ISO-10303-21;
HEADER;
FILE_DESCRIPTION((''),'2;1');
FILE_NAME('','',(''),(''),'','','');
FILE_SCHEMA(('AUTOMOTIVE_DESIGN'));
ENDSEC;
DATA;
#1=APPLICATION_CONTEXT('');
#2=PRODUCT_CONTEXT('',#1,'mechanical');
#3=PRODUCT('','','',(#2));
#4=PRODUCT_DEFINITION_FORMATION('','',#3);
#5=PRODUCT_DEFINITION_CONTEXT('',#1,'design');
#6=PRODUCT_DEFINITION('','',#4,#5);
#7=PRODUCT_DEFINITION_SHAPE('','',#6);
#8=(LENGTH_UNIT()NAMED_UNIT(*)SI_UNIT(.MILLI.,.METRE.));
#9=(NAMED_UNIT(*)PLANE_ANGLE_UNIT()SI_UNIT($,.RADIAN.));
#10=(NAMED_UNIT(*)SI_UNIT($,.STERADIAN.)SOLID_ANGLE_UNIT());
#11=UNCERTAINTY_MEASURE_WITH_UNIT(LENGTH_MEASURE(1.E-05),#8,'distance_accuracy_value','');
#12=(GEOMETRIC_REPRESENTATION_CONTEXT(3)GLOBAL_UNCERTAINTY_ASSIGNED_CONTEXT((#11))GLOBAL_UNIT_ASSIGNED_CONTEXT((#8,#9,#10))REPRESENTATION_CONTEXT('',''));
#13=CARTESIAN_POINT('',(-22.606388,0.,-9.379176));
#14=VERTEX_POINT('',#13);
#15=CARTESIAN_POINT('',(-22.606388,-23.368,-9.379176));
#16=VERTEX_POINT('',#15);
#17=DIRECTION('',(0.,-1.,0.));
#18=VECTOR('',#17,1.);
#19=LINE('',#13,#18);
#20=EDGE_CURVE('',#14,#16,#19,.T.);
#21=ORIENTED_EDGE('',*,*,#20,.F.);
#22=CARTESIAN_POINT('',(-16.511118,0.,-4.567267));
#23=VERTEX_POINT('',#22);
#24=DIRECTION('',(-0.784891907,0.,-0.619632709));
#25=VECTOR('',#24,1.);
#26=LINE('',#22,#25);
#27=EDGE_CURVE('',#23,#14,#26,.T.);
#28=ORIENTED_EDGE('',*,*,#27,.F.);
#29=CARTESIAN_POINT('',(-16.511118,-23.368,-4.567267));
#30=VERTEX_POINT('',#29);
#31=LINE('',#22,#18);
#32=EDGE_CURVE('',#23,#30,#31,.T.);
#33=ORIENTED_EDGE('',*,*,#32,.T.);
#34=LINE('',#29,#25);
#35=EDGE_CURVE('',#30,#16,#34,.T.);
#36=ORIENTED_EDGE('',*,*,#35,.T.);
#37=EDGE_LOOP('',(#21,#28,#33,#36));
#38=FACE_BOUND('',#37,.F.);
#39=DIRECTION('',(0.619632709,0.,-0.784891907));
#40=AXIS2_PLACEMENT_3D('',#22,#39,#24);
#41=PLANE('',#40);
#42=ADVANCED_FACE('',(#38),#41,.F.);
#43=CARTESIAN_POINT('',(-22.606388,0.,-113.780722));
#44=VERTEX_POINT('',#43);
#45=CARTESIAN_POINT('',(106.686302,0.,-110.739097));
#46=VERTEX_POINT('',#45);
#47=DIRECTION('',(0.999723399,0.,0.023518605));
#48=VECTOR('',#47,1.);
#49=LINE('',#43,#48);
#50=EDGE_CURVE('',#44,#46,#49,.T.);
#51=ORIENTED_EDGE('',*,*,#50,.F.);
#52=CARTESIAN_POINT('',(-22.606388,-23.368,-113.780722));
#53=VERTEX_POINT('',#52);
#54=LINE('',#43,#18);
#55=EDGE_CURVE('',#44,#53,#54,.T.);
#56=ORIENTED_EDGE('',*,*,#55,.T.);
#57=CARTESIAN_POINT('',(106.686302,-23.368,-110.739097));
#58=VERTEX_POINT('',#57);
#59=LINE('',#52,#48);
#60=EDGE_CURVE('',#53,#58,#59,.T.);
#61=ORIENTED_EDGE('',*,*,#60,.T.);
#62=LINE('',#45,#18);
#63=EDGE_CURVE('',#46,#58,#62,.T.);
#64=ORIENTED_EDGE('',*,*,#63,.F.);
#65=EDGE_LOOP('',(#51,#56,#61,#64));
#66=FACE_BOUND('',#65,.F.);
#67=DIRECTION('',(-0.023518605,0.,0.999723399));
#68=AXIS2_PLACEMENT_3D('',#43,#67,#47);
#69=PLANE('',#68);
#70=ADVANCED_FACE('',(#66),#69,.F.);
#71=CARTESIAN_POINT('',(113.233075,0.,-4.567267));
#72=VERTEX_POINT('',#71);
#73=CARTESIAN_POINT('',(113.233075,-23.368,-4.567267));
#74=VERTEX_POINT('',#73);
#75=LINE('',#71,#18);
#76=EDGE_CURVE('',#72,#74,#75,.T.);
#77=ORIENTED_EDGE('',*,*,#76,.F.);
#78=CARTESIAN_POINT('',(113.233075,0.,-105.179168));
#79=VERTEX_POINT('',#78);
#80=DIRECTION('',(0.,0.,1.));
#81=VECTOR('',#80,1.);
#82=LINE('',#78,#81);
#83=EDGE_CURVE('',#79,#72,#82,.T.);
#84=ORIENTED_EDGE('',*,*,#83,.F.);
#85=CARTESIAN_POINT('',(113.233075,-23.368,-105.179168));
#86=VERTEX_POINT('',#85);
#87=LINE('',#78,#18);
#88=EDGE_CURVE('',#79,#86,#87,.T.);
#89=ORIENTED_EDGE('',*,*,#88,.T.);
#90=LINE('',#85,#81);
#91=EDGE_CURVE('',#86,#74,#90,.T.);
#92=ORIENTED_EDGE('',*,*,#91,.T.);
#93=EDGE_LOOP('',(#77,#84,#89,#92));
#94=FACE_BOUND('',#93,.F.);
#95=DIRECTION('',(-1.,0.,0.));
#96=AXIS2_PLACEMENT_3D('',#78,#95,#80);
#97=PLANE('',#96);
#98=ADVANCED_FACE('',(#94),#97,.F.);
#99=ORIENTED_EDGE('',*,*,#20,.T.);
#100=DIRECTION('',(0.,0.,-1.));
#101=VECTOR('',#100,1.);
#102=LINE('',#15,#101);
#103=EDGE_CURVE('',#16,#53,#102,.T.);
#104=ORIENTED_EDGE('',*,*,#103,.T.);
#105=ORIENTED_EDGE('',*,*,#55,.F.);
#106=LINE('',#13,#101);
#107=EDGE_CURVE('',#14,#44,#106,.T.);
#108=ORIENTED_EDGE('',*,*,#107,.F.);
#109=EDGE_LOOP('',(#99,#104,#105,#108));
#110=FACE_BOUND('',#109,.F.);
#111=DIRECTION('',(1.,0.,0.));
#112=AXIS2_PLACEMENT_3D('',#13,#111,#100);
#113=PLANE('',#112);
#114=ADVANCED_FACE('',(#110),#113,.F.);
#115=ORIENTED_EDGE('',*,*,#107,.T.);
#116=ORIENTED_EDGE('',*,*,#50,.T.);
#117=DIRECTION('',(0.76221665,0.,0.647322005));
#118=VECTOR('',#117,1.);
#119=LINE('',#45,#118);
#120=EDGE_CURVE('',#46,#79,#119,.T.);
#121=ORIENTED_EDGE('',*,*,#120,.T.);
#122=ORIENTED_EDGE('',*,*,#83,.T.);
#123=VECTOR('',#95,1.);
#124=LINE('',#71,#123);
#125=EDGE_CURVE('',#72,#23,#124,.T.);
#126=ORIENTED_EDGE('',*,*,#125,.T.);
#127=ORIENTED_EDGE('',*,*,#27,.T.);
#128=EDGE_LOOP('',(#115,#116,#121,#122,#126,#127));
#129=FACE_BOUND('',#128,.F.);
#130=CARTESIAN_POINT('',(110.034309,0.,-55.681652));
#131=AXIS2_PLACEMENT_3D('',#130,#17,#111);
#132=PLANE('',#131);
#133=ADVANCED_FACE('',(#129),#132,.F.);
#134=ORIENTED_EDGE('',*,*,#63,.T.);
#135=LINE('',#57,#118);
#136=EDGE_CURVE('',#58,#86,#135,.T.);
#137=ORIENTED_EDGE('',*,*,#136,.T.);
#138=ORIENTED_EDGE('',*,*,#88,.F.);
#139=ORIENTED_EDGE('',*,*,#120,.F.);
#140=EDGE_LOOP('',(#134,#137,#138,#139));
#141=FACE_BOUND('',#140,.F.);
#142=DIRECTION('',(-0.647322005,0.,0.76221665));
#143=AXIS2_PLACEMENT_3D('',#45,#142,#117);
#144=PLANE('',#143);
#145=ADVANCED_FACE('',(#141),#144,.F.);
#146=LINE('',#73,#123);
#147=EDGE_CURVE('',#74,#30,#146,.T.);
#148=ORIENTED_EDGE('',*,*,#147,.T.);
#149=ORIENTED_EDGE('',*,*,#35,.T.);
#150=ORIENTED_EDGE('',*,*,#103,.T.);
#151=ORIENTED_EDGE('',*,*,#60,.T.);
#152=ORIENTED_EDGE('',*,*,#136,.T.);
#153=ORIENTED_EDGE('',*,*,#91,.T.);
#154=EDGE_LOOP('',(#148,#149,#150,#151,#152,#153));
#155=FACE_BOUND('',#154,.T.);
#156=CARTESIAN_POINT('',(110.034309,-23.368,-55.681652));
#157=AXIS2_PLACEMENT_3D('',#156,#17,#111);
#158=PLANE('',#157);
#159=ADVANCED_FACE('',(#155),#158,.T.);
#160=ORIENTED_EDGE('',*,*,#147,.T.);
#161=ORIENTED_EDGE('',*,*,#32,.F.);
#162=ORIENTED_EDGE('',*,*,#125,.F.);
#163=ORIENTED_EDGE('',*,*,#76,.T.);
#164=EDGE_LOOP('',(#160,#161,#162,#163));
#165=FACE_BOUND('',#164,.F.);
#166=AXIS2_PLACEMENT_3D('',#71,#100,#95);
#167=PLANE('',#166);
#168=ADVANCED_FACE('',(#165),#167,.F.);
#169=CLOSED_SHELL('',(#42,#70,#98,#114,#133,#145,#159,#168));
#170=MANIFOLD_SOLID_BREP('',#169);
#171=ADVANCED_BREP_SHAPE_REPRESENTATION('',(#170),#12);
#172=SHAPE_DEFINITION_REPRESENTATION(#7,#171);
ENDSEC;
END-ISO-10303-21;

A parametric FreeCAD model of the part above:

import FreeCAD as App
import Part
import Sketcher
from FreeCAD import Vector
Q = App.Units.Quantity


def add_polygon(sketch, points):
    """Adds a closed chain of lines whose ends are joined by coincident constraints."""
    first, n = sketch.GeometryCount, len(points)
    for a, b in zip(points, points[1:] + points[:1]):
        sketch.addGeometry(Part.LineSegment(App.Vector(*a, 0), App.Vector(*b, 0)), False)
    for i in range(n):
        sketch.addConstraint(Sketcher.Constraint("Coincident", first + i, 2, first + (i + 1) % n, 1))

doc = App.newDocument("Part")
body = doc.addObject("PartDesign::Body", "Body")

sketch1 = doc.addObject("Sketcher::SketchObject", "Sketch")
body.addObject(sketch1)
sketch1.AttachmentSupport = (doc.XZ_Plane, [""])
sketch1.MapMode = "FlatFace"
add_polygon(sketch1, [(107, -111), (113, -105), (113, -5), (-17, -5), (-23, -9), (-23, -114)])
sketch1.addConstraint(Sketcher.Constraint("Vertical", 1))
sketch1.addConstraint(Sketcher.Constraint("Horizontal", 2))
sketch1.addConstraint(Sketcher.Constraint("Vertical", 4))
sketch1.addConstraint(Sketcher.Constraint("Angle", 0, Q("40.339996 deg")))
sketch1.addConstraint(Sketcher.Constraint("DistanceY", 1, 1, 1, 2, Q("100.611901 mm")))
sketch1.addConstraint(Sketcher.Constraint("DistanceX", -1, 1, 5, 2, Q("106.686302 mm")))
sketch1.addConstraint(Sketcher.Constraint("Distance", 5, Q("129.328462 mm")))
sketch1.addConstraint(Sketcher.Constraint("DistanceX", 2, 2, 2, 1, Q("129.744193 mm")))
sketch1.addConstraint(Sketcher.Constraint("DistanceY", 4, 2, 4, 1, Q("104.401546 mm")))
sketch1.addConstraint(Sketcher.Constraint("DistanceY", 0, 2, -1, 1, Q("105.179168 mm")))
sketch1.addConstraint(Sketcher.Constraint("DistanceX", 2, 2, -1, 1, Q("16.511118 mm")))
sketch1.addConstraint(Sketcher.Constraint("DistanceX", 3, 2, 2, 2, Q("6.09527 mm")))
pad1 = doc.addObject("PartDesign::Pad", "Pad")
body.addObject(pad1)
pad1.Profile = sketch1
pad1.Length = Q("0.92 in")

doc.recompute()
